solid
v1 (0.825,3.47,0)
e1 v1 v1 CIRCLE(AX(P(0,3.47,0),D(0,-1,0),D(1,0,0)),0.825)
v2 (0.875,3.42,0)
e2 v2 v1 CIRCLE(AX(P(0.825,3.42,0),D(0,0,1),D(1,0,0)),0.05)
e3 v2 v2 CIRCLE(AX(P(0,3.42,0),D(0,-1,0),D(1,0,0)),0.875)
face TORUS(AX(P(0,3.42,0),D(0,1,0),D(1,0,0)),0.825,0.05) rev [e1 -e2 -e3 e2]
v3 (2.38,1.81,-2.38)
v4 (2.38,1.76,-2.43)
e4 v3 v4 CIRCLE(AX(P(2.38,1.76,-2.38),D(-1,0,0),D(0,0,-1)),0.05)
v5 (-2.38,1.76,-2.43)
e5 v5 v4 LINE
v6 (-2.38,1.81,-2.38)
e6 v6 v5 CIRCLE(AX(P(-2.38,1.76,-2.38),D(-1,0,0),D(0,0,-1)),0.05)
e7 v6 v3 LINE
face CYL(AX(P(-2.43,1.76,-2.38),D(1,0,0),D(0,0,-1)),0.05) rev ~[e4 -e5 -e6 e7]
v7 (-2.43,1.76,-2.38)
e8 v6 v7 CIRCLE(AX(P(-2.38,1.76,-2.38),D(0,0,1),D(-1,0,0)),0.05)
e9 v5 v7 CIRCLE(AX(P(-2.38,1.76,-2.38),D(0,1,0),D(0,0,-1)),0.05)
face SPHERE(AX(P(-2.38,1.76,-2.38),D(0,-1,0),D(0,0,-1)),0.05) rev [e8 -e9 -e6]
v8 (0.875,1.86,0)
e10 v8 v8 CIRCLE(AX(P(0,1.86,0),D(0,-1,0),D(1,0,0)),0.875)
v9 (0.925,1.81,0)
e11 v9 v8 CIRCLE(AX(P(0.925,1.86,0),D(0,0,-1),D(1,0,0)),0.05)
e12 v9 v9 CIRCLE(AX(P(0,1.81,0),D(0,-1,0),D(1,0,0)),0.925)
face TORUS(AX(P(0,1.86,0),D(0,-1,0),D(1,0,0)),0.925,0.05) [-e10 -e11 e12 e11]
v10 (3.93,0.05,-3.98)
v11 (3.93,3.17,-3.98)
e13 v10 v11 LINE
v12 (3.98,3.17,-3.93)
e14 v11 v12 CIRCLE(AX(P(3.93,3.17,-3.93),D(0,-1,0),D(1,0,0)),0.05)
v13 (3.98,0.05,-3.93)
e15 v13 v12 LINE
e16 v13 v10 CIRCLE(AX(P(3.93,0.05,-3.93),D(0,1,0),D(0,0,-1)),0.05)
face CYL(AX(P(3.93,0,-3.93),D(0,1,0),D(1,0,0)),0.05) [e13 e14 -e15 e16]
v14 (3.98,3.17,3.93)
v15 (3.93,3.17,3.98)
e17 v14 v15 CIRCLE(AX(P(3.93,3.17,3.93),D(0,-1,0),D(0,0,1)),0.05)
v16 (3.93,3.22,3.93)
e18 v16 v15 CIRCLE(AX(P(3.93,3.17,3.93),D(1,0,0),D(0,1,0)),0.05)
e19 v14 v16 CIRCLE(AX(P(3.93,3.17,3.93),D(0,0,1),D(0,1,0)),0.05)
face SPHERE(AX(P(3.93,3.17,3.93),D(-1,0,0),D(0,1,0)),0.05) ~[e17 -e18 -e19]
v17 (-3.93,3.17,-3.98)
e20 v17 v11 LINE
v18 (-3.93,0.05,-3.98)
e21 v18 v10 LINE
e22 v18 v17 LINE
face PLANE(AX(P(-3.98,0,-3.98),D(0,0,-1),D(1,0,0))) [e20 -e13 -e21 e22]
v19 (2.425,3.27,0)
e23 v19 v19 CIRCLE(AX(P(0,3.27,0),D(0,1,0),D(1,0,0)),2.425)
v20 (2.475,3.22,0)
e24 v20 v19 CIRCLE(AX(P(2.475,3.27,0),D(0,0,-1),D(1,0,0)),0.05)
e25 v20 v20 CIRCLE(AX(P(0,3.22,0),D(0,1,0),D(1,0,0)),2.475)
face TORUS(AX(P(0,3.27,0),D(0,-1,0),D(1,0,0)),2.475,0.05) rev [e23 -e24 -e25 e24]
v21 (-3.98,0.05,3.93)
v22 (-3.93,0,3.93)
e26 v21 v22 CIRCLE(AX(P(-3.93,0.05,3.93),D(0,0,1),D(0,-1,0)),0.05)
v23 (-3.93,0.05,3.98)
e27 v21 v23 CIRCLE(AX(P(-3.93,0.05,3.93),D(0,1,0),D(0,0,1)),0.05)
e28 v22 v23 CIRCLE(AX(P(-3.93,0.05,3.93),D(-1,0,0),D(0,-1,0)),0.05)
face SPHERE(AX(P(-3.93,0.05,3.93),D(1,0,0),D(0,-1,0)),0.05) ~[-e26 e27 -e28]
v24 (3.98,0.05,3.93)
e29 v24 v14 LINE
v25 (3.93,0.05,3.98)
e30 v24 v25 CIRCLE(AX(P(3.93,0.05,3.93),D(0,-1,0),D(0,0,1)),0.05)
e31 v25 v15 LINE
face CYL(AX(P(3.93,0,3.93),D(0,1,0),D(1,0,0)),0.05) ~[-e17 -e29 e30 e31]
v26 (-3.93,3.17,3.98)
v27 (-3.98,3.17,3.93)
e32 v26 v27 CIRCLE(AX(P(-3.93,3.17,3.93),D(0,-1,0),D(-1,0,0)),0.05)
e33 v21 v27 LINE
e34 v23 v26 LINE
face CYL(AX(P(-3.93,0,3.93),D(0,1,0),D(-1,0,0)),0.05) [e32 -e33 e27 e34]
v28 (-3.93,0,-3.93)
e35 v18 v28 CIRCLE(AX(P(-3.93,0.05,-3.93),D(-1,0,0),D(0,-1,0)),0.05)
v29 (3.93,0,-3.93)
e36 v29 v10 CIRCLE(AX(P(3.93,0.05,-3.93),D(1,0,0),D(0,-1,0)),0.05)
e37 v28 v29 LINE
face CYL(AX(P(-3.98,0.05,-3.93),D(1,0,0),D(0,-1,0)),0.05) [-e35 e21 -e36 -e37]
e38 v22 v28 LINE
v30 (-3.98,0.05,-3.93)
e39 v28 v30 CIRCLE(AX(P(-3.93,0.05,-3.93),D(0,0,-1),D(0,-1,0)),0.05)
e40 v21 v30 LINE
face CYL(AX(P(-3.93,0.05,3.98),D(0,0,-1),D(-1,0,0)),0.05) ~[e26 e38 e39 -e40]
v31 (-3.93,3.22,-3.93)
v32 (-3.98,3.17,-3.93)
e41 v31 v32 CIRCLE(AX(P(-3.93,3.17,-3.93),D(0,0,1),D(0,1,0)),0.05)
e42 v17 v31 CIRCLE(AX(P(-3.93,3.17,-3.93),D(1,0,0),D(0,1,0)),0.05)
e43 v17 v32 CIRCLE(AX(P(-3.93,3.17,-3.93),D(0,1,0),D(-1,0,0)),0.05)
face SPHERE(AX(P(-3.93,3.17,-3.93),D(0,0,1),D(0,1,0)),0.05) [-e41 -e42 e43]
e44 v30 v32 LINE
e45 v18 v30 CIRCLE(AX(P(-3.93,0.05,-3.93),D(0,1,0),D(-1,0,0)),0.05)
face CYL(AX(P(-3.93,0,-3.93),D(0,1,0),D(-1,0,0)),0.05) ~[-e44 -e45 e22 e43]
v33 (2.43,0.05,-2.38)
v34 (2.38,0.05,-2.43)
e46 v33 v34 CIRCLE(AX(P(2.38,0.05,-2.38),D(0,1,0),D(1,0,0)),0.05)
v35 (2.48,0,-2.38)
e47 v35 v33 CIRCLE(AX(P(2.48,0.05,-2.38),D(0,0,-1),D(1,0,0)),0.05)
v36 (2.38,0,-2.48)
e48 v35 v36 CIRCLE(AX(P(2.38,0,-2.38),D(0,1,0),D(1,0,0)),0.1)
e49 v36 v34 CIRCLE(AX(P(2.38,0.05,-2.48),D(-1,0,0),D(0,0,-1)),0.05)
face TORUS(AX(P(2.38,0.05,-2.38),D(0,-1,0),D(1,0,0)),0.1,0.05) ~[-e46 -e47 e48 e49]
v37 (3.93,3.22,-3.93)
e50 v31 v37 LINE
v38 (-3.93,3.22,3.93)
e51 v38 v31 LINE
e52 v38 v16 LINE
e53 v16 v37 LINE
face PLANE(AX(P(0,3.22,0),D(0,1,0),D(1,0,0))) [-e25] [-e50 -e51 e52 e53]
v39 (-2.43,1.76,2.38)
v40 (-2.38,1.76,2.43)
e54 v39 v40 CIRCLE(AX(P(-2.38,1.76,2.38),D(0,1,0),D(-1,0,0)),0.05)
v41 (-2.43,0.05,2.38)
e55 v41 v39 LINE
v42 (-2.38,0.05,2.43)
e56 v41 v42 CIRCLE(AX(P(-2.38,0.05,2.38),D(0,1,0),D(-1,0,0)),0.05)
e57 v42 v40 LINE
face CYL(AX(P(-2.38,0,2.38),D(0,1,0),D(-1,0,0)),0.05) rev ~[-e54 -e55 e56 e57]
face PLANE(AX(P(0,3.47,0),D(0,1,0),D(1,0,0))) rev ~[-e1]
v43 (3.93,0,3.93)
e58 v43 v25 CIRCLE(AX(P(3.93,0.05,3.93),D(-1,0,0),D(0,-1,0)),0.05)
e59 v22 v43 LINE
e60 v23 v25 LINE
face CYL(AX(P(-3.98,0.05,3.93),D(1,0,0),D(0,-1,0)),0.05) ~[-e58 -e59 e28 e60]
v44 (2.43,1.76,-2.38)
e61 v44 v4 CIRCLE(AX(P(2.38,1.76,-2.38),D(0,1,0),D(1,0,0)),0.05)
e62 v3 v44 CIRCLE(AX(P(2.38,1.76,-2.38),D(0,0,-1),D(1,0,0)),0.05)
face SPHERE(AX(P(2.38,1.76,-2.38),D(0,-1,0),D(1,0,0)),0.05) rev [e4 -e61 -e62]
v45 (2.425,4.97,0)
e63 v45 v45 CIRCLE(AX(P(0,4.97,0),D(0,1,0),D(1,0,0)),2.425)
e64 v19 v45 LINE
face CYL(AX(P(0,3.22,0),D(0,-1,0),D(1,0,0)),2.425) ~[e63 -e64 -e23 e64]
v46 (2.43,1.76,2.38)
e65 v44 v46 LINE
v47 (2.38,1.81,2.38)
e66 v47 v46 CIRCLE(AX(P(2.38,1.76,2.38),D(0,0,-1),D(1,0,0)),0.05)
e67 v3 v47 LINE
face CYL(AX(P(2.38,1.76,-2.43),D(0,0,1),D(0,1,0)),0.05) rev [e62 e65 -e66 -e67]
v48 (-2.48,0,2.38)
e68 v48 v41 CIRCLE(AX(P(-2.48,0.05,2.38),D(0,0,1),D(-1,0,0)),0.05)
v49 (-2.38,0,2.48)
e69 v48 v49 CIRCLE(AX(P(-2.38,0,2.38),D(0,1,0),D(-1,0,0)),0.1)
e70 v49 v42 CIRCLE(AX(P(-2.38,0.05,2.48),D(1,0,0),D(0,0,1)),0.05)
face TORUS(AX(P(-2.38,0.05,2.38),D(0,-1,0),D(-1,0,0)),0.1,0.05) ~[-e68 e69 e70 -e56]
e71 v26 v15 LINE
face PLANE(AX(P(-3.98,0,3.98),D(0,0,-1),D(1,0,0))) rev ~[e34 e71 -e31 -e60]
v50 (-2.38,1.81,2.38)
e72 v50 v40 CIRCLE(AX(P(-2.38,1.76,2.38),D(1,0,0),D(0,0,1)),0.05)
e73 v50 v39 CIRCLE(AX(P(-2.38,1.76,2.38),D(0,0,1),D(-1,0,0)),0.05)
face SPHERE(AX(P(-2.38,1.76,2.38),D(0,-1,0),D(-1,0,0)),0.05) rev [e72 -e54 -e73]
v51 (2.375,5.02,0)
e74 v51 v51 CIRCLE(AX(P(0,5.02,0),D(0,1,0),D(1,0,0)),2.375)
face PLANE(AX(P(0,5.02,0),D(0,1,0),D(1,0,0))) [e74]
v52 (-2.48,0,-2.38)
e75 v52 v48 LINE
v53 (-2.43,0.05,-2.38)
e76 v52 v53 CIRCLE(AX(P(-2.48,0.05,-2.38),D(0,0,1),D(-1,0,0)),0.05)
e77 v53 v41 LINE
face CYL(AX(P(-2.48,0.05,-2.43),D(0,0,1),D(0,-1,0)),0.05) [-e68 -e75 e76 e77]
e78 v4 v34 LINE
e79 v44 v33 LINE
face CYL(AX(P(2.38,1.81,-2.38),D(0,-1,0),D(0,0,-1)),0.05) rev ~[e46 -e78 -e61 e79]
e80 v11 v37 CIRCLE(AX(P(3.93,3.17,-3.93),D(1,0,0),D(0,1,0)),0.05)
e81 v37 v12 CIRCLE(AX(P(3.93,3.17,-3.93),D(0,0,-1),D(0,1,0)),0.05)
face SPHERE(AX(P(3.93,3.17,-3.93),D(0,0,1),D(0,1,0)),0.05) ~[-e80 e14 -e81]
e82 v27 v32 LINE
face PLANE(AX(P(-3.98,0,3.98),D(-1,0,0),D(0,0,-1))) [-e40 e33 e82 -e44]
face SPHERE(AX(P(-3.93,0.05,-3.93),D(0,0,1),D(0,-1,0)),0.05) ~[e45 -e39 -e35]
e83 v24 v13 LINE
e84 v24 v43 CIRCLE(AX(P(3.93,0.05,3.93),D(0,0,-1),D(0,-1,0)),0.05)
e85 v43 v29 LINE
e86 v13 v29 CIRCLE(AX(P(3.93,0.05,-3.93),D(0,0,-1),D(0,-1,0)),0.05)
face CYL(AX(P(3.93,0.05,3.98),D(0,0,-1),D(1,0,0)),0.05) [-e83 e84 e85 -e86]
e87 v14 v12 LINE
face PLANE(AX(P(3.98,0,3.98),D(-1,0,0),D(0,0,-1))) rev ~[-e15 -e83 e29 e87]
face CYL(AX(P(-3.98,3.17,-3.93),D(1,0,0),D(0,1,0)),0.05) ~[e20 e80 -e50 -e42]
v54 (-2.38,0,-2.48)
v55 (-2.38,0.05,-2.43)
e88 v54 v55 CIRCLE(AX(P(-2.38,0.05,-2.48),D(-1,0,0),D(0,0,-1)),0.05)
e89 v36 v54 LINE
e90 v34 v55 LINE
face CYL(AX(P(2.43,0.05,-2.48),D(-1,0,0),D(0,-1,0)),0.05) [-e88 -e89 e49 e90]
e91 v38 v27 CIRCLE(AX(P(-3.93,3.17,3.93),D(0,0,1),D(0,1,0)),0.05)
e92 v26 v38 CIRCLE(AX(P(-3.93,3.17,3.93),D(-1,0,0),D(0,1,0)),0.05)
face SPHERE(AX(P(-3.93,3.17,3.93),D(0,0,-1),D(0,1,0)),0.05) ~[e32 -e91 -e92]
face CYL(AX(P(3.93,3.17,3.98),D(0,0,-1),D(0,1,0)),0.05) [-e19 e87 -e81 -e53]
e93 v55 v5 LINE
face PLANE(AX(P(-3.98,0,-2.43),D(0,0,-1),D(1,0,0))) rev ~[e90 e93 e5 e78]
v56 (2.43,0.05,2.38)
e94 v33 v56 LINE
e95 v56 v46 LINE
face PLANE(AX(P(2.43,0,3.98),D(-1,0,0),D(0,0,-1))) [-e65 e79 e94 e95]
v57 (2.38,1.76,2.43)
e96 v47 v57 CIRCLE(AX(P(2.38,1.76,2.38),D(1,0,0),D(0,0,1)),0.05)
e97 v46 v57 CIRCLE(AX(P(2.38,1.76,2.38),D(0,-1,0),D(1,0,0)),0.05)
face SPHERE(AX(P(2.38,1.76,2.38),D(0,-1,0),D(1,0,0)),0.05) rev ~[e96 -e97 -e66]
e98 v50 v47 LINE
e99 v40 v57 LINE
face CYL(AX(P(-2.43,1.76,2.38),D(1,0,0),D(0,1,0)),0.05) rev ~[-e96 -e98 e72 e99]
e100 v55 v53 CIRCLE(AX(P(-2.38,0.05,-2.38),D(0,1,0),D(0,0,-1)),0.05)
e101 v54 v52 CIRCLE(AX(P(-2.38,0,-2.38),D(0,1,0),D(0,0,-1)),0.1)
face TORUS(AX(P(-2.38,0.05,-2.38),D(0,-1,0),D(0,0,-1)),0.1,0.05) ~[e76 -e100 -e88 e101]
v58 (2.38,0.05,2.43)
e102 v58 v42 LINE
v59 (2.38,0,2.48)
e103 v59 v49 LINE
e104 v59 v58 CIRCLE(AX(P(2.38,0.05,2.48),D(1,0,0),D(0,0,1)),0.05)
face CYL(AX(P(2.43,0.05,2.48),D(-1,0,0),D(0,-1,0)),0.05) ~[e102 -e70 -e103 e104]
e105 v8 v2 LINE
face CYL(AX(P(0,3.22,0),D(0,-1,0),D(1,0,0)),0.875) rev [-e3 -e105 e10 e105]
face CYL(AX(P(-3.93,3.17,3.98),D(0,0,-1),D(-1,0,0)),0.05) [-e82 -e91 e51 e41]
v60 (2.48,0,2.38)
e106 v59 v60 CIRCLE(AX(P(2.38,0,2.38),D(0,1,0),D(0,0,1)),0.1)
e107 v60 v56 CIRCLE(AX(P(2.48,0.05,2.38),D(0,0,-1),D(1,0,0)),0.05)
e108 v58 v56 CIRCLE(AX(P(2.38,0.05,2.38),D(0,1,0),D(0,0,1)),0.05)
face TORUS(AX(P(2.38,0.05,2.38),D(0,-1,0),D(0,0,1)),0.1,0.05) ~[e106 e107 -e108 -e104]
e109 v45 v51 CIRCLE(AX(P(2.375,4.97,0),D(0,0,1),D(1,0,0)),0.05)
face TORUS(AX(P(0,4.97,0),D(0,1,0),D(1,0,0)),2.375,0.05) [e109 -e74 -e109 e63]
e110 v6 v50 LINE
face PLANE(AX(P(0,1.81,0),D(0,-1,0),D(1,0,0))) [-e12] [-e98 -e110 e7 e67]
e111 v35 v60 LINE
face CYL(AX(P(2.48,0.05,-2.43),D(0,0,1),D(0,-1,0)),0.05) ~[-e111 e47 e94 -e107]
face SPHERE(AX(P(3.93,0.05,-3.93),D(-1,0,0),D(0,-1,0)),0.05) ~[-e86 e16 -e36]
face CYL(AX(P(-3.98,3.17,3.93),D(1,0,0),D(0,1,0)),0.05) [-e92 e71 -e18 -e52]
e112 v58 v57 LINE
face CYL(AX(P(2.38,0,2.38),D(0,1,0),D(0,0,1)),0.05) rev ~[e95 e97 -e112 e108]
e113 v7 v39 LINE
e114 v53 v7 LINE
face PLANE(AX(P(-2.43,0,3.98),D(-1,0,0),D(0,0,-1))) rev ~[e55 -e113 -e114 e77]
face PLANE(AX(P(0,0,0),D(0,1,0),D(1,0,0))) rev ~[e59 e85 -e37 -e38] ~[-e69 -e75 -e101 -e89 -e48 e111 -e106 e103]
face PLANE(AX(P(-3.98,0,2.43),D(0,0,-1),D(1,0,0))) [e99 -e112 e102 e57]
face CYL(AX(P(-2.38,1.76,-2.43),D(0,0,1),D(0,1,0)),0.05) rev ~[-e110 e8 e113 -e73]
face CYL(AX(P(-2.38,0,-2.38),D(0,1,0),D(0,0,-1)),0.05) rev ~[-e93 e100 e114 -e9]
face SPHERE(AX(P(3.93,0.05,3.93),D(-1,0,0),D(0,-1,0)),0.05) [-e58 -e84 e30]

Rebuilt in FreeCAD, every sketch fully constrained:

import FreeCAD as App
import Part
import Sketcher

V = App.Vector


def faces_at(feature, points):
    """Names of the faces that lie closest to the given points."""
    faces = feature.Shape.Faces
    near = lambda p: min(range(len(faces)), key=lambda i: faces[i].distToShape(Part.Vertex(*p))[0])
    return sorted({f"Face{near(p) + 1}" for p in points})

doc = App.newDocument("Part")
body = doc.addObject("PartDesign::Body", "Body")

# Sketch on XZ plane
sketch1 = body.newObject("Sketcher::SketchObject", "Sketch")
sketch1.AttachmentSupport = (doc.getObject("XZ_Plane"), [""])
sketch1.MapMode = "FlatFace"
sketch1.addGeometry([
    Part.LineSegment(V(-3.98, -3.98, 0), V(-3.98, 3.98, 0)),
    Part.LineSegment(V(-3.98, 3.98, 0), V(3.98, 3.98, 0)),
    Part.LineSegment(V(3.98, 3.98, 0), V(3.98, -3.98, 0)),
    Part.LineSegment(V(3.98, -3.98, 0), V(-3.98, -3.98, 0)),
], False)
sketch1.addConstraint([
    Sketcher.Constraint("Coincident", 0, 2, 1, 1),
    Sketcher.Constraint("Coincident", 1, 2, 2, 1),
    Sketcher.Constraint("Coincident", 2, 2, 3, 1),
    Sketcher.Constraint("Coincident", 3, 2, 0, 1),
    Sketcher.Constraint("Vertical", 0),
    Sketcher.Constraint("Horizontal", 1),
    Sketcher.Constraint("Vertical", 2),
    Sketcher.Constraint("Horizontal", 3),
    Sketcher.Constraint("Symmetric", 0, 2, 2, 2, -1, 1),
    Sketcher.Constraint("Equal", 3, 0),
    Sketcher.Constraint("DistanceX", 1, 1, 1, 2, 7.96),
])
pad1 = body.newObject("PartDesign::Pad", "Pad")
pad1.Profile = sketch1
pad1.Length = 3.22
pad1.Reversed = True

# Sketch on XZ plane
sketch2 = body.newObject("Sketcher::SketchObject", "Sketch001")
sketch2.AttachmentSupport = (doc.getObject("XZ_Plane"), [""])
sketch2.MapMode = "FlatFace"
sketch2.AttachmentOffset = App.Placement(V(0, 0, -3.22), App.Rotation())
sketch2.addGeometry(Part.Circle(V(0, 0, 0), V(0, 0, 1), 2.425), False)
sketch2.addConstraint([
    Sketcher.Constraint("Coincident", 0, 3, -1, 1),
    Sketcher.Constraint("Diameter", 0, 4.85),
])
pad2 = body.newObject("PartDesign::Pad", "Pad001")
pad2.Profile = sketch2
pad2.Length = 1.8
pad2.Reversed = True
doc.recompute()

thickness = body.newObject("PartDesign::Thickness", "Thickness")
thickness.Base = (pad2, faces_at(pad2, [(0, 0, 0)]))
thickness.Value = 1.55
thickness.Reversed = True
thickness.Join = "Intersection"

# Sketch on XZ plane
sketch3 = body.newObject("Sketcher::SketchObject", "Sketch002")
sketch3.AttachmentSupport = (doc.getObject("XZ_Plane"), [""])
sketch3.MapMode = "FlatFace"
sketch3.AttachmentOffset = App.Placement(V(0, 0, -1.67), App.Rotation())
sketch3.addGeometry([
    Part.LineSegment(V(-2.43, 2.43, 0), V(-2.43, -2.43, 0)),
    Part.LineSegment(V(-2.43, -2.43, 0), V(2.43, -2.43, 0)),
    Part.LineSegment(V(2.43, -2.43, 0), V(2.43, 2.43, 0)),
    Part.LineSegment(V(2.43, 2.43, 0), V(-2.43, 2.43, 0)),
], False)
sketch3.addConstraint([
    Sketcher.Constraint("Coincident", 0, 2, 1, 1),
    Sketcher.Constraint("Coincident", 1, 2, 2, 1),
    Sketcher.Constraint("Coincident", 2, 2, 3, 1),
    Sketcher.Constraint("Coincident", 3, 2, 0, 1),
    Sketcher.Constraint("Vertical", 0),
    Sketcher.Constraint("Horizontal", 1),
    Sketcher.Constraint("Vertical", 2),
    Sketcher.Constraint("Horizontal", 3),
    Sketcher.Constraint("Symmetric", 0, 2, 2, 2, -1, 1),
    Sketcher.Constraint("Equal", 3, 0),
    Sketcher.Constraint("DistanceX", 1, 1, 1, 2, 4.86),
])
pocket1 = body.newObject("PartDesign::Pocket", "Pocket")
pocket1.Profile = sketch3
pocket1.Length = 0.14
doc.recompute()

fillet = body.newObject("PartDesign::Fillet", "Fillet")
fillet.Base = (pocket1, ["Edge1"])
fillet.UseAllEdges = True
fillet.Radius = 0.05

doc.recompute()
